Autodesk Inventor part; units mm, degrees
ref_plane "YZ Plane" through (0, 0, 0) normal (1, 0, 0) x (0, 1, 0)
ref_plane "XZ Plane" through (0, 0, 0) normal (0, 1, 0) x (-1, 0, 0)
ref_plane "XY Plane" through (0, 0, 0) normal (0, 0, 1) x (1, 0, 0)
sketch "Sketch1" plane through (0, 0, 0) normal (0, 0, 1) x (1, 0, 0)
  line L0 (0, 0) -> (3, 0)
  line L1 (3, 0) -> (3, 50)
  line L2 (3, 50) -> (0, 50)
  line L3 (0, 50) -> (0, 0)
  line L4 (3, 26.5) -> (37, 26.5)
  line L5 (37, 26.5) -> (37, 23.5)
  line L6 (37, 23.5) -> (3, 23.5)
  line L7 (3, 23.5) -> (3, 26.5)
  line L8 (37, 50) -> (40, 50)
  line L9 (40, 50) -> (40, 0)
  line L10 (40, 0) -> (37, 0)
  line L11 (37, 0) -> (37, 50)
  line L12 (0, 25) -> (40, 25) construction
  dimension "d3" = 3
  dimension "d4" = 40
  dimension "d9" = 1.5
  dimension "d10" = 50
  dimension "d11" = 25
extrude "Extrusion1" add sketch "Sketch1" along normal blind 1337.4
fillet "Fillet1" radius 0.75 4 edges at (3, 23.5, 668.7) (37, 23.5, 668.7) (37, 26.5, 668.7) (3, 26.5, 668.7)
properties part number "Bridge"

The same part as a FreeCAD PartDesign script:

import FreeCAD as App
import Part
import Sketcher
from FreeCAD import Vector
Q = App.Units.Quantity


def edges_at(feature, points):
    """Names of the edges that pass closest to the given points."""
    edges = feature.Shape.Edges
    near = lambda p: min(range(len(edges)), key=lambda i: edges[i].distToShape(Part.Vertex(*p))[0])
    return sorted({f"Edge{near(p) + 1}" for p in points})


def add_polygon(sketch, points):
    """Adds a closed chain of lines whose ends are joined by coincident constraints."""
    first, n = sketch.GeometryCount, len(points)
    for a, b in zip(points, points[1:] + points[:1]):
        sketch.addGeometry(Part.LineSegment(App.Vector(*a, 0), App.Vector(*b, 0)), False)
    for i in range(n):
        sketch.addConstraint(Sketcher.Constraint("Coincident", first + i, 2, first + (i + 1) % n, 1))

doc = App.newDocument("Part")
body = doc.addObject("PartDesign::Body", "Body")

sketch1 = body.newObject("Sketcher::SketchObject", "Sketch")
sketch1.AttachmentSupport = (doc.getObject("XY_Plane"), [""])
sketch1.MapMode = "FlatFace"
add_polygon(sketch1, [(0, 50), (0, 0), (3, 0), (3, 23.5), (37, 23.5), (37, 0), (40, 0), (40, 50), (37, 50), (37, 26.5), (3, 26.5), (3, 50)])
sketch1.addConstraint([
    Sketcher.Constraint("Vertical", 0),
    Sketcher.Constraint("Horizontal", 1),
    Sketcher.Constraint("Vertical", 2),
    Sketcher.Constraint("Horizontal", 3),
    Sketcher.Constraint("Vertical", 4),
    Sketcher.Constraint("Horizontal", 5),
    Sketcher.Constraint("Vertical", 6),
    Sketcher.Constraint("Horizontal", 7),
    Sketcher.Constraint("Vertical", 8),
    Sketcher.Constraint("Horizontal", 9),
    Sketcher.Constraint("Vertical", 10),
    Sketcher.Constraint("Horizontal", 11),
    Sketcher.Constraint("Coincident", 0, 2, -1, 1),
    Sketcher.Constraint("PointOnObject", 4, 2, -1),
    Sketcher.Constraint("Horizontal", 7, 2, 10, 2),
    Sketcher.Constraint("Vertical", 4, 2, 7, 2),
    Sketcher.Constraint("Vertical", 2, 2, 9, 2),
    Sketcher.Constraint("Equal", 1, 5),
    Sketcher.Constraint("Equal", 4, 8),
    Sketcher.Constraint("DistanceX", 1, 1, 1, 2, Q("3 mm")),
    Sketcher.Constraint("DistanceY", 0, 2, 0, 1, Q("50 mm")),
    Sketcher.Constraint("DistanceX", -1, 1, 5, 2, Q("40 mm")),
    Sketcher.Constraint("DistanceY", 3, 2, 8, 2, Q("3 mm")),
])
pad1 = body.newObject("PartDesign::Pad", "Pad")
pad1.Profile = sketch1
pad1.Length = 1337.4
doc.recompute()

fillet = body.newObject("PartDesign::Fillet", "Fillet")
fillet.Base = (pad1, edges_at(pad1, [
    (3, 23.5, 668.7),
    (37, 23.5, 668.7),
    (37, 26.5, 668.7),
    (3, 26.5, 668.7),
]))
fillet.Radius = 0.75

doc.recompute()
